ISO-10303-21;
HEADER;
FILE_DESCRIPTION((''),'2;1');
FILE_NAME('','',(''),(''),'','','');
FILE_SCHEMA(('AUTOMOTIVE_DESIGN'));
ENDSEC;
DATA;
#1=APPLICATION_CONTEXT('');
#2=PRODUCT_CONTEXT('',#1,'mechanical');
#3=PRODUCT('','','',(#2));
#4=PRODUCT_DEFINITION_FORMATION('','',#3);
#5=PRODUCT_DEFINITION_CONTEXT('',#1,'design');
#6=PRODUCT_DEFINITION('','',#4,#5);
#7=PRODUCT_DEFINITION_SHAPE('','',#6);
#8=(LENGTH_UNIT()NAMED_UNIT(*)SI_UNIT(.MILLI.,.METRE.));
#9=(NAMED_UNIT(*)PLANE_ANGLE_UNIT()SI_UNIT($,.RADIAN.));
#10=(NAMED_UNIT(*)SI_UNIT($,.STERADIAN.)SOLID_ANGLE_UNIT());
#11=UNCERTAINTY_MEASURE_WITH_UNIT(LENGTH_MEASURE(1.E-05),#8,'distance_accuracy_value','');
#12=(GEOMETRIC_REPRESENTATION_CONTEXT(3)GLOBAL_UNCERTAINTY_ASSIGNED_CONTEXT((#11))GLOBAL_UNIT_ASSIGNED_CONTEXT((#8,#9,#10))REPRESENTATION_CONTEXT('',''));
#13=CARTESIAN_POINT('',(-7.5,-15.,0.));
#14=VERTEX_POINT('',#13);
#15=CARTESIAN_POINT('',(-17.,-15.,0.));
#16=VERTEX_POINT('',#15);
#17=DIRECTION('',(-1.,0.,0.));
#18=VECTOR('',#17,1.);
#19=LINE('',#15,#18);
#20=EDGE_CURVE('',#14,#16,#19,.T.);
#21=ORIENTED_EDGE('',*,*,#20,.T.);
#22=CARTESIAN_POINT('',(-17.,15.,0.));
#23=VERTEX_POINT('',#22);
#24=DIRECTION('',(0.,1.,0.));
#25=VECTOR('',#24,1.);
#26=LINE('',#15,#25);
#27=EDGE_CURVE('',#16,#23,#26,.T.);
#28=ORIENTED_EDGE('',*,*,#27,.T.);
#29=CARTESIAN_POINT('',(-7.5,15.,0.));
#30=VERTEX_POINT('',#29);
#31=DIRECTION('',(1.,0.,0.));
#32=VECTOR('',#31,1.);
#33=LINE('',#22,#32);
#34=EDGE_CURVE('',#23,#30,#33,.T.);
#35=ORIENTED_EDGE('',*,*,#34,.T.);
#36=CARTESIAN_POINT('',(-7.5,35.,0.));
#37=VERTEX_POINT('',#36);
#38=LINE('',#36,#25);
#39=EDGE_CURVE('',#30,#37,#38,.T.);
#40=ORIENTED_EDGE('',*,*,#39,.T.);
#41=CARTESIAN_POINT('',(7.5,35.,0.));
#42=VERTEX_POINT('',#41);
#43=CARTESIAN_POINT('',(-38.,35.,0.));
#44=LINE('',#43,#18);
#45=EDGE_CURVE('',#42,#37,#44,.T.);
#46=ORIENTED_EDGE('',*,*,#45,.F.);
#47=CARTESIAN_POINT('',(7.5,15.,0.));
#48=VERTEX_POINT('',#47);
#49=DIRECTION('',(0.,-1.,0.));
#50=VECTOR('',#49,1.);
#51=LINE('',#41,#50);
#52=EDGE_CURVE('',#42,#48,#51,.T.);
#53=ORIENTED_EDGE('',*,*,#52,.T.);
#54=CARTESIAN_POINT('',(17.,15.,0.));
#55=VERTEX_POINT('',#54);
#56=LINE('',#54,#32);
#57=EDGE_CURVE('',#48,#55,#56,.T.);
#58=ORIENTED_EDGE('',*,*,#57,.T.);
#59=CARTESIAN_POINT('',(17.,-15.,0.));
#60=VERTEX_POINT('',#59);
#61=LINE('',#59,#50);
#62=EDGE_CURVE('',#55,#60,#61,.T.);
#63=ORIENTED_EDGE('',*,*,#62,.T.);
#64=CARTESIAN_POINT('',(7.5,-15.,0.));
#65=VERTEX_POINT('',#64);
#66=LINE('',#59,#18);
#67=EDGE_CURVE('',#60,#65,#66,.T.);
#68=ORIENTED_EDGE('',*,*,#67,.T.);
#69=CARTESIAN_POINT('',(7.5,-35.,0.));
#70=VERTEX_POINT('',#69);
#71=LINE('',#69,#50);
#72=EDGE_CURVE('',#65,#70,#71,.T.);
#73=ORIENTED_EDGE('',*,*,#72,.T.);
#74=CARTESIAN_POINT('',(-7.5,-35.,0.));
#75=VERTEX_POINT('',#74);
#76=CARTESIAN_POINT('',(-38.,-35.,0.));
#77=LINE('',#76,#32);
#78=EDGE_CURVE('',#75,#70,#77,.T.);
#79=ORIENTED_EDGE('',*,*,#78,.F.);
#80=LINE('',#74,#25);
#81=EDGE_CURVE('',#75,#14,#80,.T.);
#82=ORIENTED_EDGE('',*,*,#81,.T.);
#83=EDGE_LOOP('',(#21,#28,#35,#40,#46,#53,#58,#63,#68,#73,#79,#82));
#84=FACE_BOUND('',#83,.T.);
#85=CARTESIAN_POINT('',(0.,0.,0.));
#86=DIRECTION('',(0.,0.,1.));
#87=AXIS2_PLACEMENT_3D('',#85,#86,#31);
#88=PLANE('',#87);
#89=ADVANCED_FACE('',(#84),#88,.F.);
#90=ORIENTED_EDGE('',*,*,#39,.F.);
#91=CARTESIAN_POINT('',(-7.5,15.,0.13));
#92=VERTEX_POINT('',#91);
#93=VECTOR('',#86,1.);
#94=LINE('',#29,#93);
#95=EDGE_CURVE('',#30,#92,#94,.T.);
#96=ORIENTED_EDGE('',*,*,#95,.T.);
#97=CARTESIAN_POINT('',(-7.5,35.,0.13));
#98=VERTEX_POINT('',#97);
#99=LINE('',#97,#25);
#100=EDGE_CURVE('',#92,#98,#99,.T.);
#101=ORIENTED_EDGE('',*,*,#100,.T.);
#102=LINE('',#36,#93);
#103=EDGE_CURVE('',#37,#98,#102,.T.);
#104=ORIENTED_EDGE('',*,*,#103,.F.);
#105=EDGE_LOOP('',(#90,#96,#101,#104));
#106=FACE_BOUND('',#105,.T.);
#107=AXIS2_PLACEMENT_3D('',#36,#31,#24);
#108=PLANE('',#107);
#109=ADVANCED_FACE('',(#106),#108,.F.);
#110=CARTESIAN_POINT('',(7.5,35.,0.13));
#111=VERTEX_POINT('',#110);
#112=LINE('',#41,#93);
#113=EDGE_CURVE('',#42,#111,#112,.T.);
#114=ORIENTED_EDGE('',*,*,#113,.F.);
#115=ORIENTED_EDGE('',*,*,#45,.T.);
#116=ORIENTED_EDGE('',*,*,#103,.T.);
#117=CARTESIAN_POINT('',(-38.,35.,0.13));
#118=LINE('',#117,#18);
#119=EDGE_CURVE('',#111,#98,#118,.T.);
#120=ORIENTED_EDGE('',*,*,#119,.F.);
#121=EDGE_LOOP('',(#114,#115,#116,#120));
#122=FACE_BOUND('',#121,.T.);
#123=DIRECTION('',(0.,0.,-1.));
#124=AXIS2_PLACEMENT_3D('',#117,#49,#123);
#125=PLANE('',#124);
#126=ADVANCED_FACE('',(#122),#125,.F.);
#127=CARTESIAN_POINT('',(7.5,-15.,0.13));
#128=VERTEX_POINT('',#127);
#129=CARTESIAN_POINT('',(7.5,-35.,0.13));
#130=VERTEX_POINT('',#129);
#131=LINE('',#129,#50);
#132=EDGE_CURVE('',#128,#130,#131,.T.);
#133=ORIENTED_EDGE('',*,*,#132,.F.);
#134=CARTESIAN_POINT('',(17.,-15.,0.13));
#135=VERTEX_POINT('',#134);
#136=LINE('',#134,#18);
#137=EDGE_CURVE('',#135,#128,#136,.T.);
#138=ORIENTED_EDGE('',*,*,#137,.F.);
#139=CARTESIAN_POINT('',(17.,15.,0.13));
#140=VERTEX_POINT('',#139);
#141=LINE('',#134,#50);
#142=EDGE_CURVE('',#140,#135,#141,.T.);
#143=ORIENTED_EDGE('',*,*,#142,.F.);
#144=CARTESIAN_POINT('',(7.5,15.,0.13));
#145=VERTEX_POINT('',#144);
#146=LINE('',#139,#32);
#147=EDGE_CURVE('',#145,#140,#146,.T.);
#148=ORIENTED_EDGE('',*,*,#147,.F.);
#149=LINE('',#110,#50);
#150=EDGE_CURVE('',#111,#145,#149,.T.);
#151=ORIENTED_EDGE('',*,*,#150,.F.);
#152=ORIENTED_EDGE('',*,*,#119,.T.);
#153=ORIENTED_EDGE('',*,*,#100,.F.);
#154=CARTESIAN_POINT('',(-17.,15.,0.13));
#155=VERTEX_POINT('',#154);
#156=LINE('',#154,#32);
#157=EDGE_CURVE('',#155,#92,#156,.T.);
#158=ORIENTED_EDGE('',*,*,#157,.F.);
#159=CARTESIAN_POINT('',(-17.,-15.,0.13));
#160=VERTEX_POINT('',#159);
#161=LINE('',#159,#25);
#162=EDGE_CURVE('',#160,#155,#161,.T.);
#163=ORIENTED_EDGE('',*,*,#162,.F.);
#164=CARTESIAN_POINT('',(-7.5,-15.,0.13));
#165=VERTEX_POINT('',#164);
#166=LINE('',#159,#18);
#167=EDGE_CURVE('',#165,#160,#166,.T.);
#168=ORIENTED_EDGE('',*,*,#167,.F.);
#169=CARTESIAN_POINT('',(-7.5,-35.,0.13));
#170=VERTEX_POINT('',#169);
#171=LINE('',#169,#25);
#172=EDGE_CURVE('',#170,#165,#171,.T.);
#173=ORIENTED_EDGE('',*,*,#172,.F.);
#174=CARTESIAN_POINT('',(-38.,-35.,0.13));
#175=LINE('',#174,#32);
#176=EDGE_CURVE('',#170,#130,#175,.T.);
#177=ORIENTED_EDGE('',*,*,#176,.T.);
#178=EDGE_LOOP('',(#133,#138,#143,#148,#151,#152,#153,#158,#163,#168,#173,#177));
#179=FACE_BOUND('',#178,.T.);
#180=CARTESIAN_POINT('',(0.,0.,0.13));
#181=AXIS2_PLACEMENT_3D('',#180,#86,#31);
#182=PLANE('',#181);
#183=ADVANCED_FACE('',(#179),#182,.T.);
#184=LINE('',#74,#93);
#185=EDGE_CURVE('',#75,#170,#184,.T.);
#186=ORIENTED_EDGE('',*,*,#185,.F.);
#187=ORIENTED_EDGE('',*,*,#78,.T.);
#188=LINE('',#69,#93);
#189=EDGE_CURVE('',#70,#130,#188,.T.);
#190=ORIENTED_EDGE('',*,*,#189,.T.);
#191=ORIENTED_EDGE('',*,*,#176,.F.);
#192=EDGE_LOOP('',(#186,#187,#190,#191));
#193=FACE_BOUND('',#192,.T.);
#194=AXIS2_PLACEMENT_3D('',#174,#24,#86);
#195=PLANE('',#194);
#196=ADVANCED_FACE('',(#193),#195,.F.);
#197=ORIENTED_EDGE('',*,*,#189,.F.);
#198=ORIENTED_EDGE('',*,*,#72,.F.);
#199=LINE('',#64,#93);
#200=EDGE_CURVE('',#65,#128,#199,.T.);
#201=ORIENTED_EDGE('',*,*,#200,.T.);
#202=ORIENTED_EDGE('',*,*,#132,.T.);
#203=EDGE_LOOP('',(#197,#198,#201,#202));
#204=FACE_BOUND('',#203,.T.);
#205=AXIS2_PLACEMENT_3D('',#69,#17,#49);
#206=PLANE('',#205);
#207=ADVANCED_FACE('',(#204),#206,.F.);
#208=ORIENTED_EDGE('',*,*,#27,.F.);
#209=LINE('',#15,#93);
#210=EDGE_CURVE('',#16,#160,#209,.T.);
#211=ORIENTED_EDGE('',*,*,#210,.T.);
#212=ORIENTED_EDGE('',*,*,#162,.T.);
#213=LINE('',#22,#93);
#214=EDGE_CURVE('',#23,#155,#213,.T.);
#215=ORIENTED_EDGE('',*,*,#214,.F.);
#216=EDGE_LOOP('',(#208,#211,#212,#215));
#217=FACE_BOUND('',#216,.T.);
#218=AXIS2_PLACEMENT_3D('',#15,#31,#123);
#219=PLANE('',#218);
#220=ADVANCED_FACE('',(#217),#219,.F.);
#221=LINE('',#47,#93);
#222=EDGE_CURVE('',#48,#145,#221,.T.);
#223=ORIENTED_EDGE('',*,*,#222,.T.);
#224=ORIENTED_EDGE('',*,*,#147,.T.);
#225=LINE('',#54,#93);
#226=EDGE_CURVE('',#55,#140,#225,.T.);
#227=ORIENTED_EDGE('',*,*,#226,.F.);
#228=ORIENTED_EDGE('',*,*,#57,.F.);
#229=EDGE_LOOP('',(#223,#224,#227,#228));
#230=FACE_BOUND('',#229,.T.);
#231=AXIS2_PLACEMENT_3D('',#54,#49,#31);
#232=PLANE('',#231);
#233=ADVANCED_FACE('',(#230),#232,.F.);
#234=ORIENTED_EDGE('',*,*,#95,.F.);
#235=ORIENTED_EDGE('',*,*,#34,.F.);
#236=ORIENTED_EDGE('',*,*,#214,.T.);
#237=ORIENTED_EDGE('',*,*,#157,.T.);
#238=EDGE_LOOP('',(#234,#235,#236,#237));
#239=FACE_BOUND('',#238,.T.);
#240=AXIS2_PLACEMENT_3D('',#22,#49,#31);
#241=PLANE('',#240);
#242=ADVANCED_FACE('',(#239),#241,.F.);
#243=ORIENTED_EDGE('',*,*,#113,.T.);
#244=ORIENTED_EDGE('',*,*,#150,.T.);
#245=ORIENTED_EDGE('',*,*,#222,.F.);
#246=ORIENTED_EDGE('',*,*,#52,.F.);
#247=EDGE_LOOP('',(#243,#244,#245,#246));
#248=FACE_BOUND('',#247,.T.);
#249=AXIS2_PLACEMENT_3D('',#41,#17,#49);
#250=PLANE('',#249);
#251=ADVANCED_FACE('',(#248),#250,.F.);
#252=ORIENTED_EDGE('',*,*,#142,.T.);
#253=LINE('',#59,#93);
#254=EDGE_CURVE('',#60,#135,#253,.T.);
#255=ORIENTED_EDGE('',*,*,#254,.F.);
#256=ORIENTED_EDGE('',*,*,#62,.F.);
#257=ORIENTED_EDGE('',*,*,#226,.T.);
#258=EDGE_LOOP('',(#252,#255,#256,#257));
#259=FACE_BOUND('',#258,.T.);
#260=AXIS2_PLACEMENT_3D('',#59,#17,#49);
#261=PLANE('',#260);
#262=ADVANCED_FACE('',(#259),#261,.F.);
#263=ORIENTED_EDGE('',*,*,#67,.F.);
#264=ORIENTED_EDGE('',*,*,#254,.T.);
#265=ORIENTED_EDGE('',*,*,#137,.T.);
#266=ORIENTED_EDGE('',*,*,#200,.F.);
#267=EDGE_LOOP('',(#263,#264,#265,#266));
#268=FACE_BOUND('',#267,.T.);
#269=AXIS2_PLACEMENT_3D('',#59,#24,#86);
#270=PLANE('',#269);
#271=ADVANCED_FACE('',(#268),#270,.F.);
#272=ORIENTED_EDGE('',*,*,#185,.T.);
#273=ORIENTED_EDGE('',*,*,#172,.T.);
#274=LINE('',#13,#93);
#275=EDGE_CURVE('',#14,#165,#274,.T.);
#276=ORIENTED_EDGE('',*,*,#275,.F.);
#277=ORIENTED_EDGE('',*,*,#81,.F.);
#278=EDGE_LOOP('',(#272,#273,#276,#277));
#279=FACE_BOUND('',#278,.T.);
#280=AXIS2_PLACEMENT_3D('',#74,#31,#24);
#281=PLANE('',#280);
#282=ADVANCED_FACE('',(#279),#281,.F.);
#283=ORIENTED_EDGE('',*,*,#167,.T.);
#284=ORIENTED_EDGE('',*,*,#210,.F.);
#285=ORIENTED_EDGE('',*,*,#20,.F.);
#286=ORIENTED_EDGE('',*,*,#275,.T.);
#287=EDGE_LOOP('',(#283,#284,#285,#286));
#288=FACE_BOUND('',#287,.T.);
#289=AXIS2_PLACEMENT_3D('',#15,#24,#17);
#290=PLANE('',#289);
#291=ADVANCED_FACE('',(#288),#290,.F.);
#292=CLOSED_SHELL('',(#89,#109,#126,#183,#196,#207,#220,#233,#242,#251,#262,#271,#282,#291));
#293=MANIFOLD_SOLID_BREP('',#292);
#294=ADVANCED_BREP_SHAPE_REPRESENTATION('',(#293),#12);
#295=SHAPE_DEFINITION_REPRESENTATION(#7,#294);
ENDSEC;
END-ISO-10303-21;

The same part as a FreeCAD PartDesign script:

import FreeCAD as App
import Part
import Sketcher
Q = App.Units.Quantity


def add_polygon(sketch, points):
    """Adds a closed chain of lines whose ends are joined by coincident constraints."""
    first, n = sketch.GeometryCount, len(points)
    for a, b in zip(points, points[1:] + points[:1]):
        sketch.addGeometry(Part.LineSegment(App.Vector(*a, 0), App.Vector(*b, 0)), False)
    for i in range(n):
        sketch.addConstraint(Sketcher.Constraint("Coincident", first + i, 2, first + (i + 1) % n, 1))

doc = App.newDocument("Part")
body = doc.addObject("PartDesign::Body", "Body")

# Sketch on XY plane
sketch1 = body.newObject("Sketcher::SketchObject", "Sketch")
sketch1.AttachmentSupport = (doc.getObject("XY_Plane"), [""])
sketch1.MapMode = "FlatFace"
add_polygon(sketch1, [(-38, 35), (-38, -35), (38, -35), (38, 35)])  # lines 0-3
sketch1.addConstraint([
    Sketcher.Constraint("Vertical", 0),
    Sketcher.Constraint("Horizontal", 1),
    Sketcher.Constraint("Vertical", 2),
    Sketcher.Constraint("Horizontal", 3),
    Sketcher.Constraint("Symmetric", 0, 2, 2, 2, -1, 1),
    Sketcher.Constraint("DistanceX", 1, 1, 1, 2, Q("76 mm")),
    Sketcher.Constraint("DistanceY", 0, 2, 0, 1, Q("70 mm")),
])
pad1 = body.newObject("PartDesign::Pad", "Pad")
pad1.Profile = sketch1
pad1.Length = 0.13

# Sketch on XY plane
sketch2 = body.newObject("Sketcher::SketchObject", "Sketch001")
sketch2.AttachmentSupport = (doc.getObject("XY_Plane"), [""])
sketch2.MapMode = "FlatFace"
sketch2.AttachmentOffset = App.Placement(App.Vector(0, 0, 0.13), App.Rotation())
add_polygon(sketch2, [(-8, 35), (-38, 35), (-38, -35), (-8, -35), (-8, -15), (-17, -15), (-17, 15), (-8, 15)])  # lines 0-7
add_polygon(sketch2, [(8, 15), (17, 15), (17, -15), (8, -15), (8, -35), (38, -35), (38, 35), (8, 35)])  # lines 8-15
sketch2.addConstraint([
    Sketcher.Constraint("Horizontal", 0),
    Sketcher.Constraint("Vertical", 1),
    Sketcher.Constraint("Horizontal", 2),
    Sketcher.Constraint("Vertical", 3),
    Sketcher.Constraint("Horizontal", 4),
    Sketcher.Constraint("Vertical", 5),
    Sketcher.Constraint("Horizontal", 6),
    Sketcher.Constraint("Vertical", 7),
    Sketcher.Constraint("Horizontal", 8),
    Sketcher.Constraint("Vertical", 9),
    Sketcher.Constraint("Horizontal", 10),
    Sketcher.Constraint("Vertical", 11),
    Sketcher.Constraint("Horizontal", 12),
    Sketcher.Constraint("Vertical", 13),
    Sketcher.Constraint("Horizontal", 14),
    Sketcher.Constraint("Vertical", 15),
    Sketcher.Constraint("Symmetric", 4, 2, 8, 2, -1, 1),
    Sketcher.Constraint("Symmetric", 6, 2, 10, 2, -1, 1),
    Sketcher.Constraint("Symmetric", 0, 2, 12, 2, -1, 1),
    Sketcher.Constraint("Symmetric", 2, 2, 14, 2, -1, 1),
    Sketcher.Constraint("Symmetric", 3, 2, 10, 2, -2),
    Sketcher.Constraint("Horizontal", 2, 2, 11, 2),
    Sketcher.Constraint("DistanceY", 1, 2, 1, 1, Q("70 mm")),
    Sketcher.Constraint("DistanceY", 3, 1, 3, 2, Q("20 mm")),
    Sketcher.Constraint("DistanceX", 0, 2, 0, 1, Q("30.5 mm")),
    Sketcher.Constraint("DistanceX", 4, 2, 4, 1, Q("9.5 mm")),
    Sketcher.Constraint("DistanceX", 0, 2, -1, 1, Q("38 mm")),
])
pocket1 = body.newObject("PartDesign::Pocket", "Pocket")
pocket1.Profile = sketch2
pocket1.Type = "ThroughAll"

doc.recompute()
